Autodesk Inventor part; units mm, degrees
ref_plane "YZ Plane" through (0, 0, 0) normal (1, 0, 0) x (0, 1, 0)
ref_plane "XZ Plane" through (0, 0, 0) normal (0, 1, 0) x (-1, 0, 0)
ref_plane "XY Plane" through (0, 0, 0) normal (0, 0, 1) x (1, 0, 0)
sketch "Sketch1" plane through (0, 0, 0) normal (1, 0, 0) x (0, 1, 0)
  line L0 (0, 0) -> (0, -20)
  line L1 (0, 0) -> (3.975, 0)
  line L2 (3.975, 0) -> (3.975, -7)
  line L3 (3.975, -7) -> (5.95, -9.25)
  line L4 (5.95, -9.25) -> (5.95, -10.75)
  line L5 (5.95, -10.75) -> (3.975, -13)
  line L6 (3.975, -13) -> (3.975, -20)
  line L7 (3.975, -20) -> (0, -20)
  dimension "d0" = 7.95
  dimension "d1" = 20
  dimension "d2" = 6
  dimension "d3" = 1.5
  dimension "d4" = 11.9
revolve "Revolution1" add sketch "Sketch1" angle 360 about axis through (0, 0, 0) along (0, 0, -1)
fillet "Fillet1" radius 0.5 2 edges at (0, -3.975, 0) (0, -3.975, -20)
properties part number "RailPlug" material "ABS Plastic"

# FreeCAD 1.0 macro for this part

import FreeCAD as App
import Part
import Sketcher

V = App.Vector
Q = App.Units.Quantity


def edges_at(feature, points):
    """Names of the edges that pass closest to the given points."""
    edges = feature.Shape.Edges
    near = lambda p: min(range(len(edges)), key=lambda i: edges[i].distToShape(Part.Vertex(*p))[0])
    return sorted({f"Edge{near(p) + 1}" for p in points})


def add_polygon(sketch, points):
    """Adds a closed chain of lines whose ends are joined by coincident constraints."""
    first, n = sketch.GeometryCount, len(points)
    for a, b in zip(points, points[1:] + points[:1]):
        sketch.addGeometry(Part.LineSegment(App.Vector(*a, 0), App.Vector(*b, 0)), False)
    for i in range(n):
        sketch.addConstraint(Sketcher.Constraint("Coincident", first + i, 2, first + (i + 1) % n, 1))

doc = App.newDocument("Part")
body = doc.addObject("PartDesign::Body", "Body")

# Sketch on YZ plane
sketch1 = body.newObject("Sketcher::SketchObject", "Sketch")
sketch1.AttachmentSupport = (doc.getObject("YZ_Plane"), [""])
sketch1.MapMode = "FlatFace"
add_polygon(sketch1, [(3.975, 0), (0, 0), (0, -20), (3.975, -20), (3.975, -13), (5.95, -10.75), (5.95, -9.25), (3.975, -7)])  # lines 0-7
sketch1.addConstraint([
    Sketcher.Constraint("Horizontal", 0),
    Sketcher.Constraint("Vertical", 1),
    Sketcher.Constraint("Horizontal", 2),
    Sketcher.Constraint("Vertical", 3),
    Sketcher.Constraint("Vertical", 5),
    Sketcher.Constraint("Vertical", 7),
    Sketcher.Constraint("Coincident", 0, 2, -1, 1),
    Sketcher.Constraint("Vertical", 3, 2, 6, 2),
    Sketcher.Constraint("Equal", 3, 7),
    Sketcher.Constraint("Equal", 4, 6),
    Sketcher.Constraint("DistanceY", 1, 2, 1, 1, Q("20 mm")),
    Sketcher.Constraint("DistanceY", 5, 1, 5, 2, Q("1.5 mm")),
    Sketcher.Constraint("DistanceY", 3, 2, 6, 2, Q("6 mm")),
    Sketcher.Constraint("DistanceX", 0, 2, 0, 1, Q("3.975 mm")),
    Sketcher.Constraint("DistanceX", -1, 1, 4, 2, Q("5.95 mm")),
])
revolution = body.newObject("PartDesign::Revolution", "Revolution")
revolution.Profile = sketch1
revolution.ReferenceAxis = (sketch1, ["V_Axis"])
revolution.Angle = 360
doc.recompute()

fillet = body.newObject("PartDesign::Fillet", "Fillet")
fillet.Base = (revolution, edges_at(revolution, [(0, -3.975, 0), (0, -3.975, -20)]))
fillet.Radius = 0.5

doc.recompute()
